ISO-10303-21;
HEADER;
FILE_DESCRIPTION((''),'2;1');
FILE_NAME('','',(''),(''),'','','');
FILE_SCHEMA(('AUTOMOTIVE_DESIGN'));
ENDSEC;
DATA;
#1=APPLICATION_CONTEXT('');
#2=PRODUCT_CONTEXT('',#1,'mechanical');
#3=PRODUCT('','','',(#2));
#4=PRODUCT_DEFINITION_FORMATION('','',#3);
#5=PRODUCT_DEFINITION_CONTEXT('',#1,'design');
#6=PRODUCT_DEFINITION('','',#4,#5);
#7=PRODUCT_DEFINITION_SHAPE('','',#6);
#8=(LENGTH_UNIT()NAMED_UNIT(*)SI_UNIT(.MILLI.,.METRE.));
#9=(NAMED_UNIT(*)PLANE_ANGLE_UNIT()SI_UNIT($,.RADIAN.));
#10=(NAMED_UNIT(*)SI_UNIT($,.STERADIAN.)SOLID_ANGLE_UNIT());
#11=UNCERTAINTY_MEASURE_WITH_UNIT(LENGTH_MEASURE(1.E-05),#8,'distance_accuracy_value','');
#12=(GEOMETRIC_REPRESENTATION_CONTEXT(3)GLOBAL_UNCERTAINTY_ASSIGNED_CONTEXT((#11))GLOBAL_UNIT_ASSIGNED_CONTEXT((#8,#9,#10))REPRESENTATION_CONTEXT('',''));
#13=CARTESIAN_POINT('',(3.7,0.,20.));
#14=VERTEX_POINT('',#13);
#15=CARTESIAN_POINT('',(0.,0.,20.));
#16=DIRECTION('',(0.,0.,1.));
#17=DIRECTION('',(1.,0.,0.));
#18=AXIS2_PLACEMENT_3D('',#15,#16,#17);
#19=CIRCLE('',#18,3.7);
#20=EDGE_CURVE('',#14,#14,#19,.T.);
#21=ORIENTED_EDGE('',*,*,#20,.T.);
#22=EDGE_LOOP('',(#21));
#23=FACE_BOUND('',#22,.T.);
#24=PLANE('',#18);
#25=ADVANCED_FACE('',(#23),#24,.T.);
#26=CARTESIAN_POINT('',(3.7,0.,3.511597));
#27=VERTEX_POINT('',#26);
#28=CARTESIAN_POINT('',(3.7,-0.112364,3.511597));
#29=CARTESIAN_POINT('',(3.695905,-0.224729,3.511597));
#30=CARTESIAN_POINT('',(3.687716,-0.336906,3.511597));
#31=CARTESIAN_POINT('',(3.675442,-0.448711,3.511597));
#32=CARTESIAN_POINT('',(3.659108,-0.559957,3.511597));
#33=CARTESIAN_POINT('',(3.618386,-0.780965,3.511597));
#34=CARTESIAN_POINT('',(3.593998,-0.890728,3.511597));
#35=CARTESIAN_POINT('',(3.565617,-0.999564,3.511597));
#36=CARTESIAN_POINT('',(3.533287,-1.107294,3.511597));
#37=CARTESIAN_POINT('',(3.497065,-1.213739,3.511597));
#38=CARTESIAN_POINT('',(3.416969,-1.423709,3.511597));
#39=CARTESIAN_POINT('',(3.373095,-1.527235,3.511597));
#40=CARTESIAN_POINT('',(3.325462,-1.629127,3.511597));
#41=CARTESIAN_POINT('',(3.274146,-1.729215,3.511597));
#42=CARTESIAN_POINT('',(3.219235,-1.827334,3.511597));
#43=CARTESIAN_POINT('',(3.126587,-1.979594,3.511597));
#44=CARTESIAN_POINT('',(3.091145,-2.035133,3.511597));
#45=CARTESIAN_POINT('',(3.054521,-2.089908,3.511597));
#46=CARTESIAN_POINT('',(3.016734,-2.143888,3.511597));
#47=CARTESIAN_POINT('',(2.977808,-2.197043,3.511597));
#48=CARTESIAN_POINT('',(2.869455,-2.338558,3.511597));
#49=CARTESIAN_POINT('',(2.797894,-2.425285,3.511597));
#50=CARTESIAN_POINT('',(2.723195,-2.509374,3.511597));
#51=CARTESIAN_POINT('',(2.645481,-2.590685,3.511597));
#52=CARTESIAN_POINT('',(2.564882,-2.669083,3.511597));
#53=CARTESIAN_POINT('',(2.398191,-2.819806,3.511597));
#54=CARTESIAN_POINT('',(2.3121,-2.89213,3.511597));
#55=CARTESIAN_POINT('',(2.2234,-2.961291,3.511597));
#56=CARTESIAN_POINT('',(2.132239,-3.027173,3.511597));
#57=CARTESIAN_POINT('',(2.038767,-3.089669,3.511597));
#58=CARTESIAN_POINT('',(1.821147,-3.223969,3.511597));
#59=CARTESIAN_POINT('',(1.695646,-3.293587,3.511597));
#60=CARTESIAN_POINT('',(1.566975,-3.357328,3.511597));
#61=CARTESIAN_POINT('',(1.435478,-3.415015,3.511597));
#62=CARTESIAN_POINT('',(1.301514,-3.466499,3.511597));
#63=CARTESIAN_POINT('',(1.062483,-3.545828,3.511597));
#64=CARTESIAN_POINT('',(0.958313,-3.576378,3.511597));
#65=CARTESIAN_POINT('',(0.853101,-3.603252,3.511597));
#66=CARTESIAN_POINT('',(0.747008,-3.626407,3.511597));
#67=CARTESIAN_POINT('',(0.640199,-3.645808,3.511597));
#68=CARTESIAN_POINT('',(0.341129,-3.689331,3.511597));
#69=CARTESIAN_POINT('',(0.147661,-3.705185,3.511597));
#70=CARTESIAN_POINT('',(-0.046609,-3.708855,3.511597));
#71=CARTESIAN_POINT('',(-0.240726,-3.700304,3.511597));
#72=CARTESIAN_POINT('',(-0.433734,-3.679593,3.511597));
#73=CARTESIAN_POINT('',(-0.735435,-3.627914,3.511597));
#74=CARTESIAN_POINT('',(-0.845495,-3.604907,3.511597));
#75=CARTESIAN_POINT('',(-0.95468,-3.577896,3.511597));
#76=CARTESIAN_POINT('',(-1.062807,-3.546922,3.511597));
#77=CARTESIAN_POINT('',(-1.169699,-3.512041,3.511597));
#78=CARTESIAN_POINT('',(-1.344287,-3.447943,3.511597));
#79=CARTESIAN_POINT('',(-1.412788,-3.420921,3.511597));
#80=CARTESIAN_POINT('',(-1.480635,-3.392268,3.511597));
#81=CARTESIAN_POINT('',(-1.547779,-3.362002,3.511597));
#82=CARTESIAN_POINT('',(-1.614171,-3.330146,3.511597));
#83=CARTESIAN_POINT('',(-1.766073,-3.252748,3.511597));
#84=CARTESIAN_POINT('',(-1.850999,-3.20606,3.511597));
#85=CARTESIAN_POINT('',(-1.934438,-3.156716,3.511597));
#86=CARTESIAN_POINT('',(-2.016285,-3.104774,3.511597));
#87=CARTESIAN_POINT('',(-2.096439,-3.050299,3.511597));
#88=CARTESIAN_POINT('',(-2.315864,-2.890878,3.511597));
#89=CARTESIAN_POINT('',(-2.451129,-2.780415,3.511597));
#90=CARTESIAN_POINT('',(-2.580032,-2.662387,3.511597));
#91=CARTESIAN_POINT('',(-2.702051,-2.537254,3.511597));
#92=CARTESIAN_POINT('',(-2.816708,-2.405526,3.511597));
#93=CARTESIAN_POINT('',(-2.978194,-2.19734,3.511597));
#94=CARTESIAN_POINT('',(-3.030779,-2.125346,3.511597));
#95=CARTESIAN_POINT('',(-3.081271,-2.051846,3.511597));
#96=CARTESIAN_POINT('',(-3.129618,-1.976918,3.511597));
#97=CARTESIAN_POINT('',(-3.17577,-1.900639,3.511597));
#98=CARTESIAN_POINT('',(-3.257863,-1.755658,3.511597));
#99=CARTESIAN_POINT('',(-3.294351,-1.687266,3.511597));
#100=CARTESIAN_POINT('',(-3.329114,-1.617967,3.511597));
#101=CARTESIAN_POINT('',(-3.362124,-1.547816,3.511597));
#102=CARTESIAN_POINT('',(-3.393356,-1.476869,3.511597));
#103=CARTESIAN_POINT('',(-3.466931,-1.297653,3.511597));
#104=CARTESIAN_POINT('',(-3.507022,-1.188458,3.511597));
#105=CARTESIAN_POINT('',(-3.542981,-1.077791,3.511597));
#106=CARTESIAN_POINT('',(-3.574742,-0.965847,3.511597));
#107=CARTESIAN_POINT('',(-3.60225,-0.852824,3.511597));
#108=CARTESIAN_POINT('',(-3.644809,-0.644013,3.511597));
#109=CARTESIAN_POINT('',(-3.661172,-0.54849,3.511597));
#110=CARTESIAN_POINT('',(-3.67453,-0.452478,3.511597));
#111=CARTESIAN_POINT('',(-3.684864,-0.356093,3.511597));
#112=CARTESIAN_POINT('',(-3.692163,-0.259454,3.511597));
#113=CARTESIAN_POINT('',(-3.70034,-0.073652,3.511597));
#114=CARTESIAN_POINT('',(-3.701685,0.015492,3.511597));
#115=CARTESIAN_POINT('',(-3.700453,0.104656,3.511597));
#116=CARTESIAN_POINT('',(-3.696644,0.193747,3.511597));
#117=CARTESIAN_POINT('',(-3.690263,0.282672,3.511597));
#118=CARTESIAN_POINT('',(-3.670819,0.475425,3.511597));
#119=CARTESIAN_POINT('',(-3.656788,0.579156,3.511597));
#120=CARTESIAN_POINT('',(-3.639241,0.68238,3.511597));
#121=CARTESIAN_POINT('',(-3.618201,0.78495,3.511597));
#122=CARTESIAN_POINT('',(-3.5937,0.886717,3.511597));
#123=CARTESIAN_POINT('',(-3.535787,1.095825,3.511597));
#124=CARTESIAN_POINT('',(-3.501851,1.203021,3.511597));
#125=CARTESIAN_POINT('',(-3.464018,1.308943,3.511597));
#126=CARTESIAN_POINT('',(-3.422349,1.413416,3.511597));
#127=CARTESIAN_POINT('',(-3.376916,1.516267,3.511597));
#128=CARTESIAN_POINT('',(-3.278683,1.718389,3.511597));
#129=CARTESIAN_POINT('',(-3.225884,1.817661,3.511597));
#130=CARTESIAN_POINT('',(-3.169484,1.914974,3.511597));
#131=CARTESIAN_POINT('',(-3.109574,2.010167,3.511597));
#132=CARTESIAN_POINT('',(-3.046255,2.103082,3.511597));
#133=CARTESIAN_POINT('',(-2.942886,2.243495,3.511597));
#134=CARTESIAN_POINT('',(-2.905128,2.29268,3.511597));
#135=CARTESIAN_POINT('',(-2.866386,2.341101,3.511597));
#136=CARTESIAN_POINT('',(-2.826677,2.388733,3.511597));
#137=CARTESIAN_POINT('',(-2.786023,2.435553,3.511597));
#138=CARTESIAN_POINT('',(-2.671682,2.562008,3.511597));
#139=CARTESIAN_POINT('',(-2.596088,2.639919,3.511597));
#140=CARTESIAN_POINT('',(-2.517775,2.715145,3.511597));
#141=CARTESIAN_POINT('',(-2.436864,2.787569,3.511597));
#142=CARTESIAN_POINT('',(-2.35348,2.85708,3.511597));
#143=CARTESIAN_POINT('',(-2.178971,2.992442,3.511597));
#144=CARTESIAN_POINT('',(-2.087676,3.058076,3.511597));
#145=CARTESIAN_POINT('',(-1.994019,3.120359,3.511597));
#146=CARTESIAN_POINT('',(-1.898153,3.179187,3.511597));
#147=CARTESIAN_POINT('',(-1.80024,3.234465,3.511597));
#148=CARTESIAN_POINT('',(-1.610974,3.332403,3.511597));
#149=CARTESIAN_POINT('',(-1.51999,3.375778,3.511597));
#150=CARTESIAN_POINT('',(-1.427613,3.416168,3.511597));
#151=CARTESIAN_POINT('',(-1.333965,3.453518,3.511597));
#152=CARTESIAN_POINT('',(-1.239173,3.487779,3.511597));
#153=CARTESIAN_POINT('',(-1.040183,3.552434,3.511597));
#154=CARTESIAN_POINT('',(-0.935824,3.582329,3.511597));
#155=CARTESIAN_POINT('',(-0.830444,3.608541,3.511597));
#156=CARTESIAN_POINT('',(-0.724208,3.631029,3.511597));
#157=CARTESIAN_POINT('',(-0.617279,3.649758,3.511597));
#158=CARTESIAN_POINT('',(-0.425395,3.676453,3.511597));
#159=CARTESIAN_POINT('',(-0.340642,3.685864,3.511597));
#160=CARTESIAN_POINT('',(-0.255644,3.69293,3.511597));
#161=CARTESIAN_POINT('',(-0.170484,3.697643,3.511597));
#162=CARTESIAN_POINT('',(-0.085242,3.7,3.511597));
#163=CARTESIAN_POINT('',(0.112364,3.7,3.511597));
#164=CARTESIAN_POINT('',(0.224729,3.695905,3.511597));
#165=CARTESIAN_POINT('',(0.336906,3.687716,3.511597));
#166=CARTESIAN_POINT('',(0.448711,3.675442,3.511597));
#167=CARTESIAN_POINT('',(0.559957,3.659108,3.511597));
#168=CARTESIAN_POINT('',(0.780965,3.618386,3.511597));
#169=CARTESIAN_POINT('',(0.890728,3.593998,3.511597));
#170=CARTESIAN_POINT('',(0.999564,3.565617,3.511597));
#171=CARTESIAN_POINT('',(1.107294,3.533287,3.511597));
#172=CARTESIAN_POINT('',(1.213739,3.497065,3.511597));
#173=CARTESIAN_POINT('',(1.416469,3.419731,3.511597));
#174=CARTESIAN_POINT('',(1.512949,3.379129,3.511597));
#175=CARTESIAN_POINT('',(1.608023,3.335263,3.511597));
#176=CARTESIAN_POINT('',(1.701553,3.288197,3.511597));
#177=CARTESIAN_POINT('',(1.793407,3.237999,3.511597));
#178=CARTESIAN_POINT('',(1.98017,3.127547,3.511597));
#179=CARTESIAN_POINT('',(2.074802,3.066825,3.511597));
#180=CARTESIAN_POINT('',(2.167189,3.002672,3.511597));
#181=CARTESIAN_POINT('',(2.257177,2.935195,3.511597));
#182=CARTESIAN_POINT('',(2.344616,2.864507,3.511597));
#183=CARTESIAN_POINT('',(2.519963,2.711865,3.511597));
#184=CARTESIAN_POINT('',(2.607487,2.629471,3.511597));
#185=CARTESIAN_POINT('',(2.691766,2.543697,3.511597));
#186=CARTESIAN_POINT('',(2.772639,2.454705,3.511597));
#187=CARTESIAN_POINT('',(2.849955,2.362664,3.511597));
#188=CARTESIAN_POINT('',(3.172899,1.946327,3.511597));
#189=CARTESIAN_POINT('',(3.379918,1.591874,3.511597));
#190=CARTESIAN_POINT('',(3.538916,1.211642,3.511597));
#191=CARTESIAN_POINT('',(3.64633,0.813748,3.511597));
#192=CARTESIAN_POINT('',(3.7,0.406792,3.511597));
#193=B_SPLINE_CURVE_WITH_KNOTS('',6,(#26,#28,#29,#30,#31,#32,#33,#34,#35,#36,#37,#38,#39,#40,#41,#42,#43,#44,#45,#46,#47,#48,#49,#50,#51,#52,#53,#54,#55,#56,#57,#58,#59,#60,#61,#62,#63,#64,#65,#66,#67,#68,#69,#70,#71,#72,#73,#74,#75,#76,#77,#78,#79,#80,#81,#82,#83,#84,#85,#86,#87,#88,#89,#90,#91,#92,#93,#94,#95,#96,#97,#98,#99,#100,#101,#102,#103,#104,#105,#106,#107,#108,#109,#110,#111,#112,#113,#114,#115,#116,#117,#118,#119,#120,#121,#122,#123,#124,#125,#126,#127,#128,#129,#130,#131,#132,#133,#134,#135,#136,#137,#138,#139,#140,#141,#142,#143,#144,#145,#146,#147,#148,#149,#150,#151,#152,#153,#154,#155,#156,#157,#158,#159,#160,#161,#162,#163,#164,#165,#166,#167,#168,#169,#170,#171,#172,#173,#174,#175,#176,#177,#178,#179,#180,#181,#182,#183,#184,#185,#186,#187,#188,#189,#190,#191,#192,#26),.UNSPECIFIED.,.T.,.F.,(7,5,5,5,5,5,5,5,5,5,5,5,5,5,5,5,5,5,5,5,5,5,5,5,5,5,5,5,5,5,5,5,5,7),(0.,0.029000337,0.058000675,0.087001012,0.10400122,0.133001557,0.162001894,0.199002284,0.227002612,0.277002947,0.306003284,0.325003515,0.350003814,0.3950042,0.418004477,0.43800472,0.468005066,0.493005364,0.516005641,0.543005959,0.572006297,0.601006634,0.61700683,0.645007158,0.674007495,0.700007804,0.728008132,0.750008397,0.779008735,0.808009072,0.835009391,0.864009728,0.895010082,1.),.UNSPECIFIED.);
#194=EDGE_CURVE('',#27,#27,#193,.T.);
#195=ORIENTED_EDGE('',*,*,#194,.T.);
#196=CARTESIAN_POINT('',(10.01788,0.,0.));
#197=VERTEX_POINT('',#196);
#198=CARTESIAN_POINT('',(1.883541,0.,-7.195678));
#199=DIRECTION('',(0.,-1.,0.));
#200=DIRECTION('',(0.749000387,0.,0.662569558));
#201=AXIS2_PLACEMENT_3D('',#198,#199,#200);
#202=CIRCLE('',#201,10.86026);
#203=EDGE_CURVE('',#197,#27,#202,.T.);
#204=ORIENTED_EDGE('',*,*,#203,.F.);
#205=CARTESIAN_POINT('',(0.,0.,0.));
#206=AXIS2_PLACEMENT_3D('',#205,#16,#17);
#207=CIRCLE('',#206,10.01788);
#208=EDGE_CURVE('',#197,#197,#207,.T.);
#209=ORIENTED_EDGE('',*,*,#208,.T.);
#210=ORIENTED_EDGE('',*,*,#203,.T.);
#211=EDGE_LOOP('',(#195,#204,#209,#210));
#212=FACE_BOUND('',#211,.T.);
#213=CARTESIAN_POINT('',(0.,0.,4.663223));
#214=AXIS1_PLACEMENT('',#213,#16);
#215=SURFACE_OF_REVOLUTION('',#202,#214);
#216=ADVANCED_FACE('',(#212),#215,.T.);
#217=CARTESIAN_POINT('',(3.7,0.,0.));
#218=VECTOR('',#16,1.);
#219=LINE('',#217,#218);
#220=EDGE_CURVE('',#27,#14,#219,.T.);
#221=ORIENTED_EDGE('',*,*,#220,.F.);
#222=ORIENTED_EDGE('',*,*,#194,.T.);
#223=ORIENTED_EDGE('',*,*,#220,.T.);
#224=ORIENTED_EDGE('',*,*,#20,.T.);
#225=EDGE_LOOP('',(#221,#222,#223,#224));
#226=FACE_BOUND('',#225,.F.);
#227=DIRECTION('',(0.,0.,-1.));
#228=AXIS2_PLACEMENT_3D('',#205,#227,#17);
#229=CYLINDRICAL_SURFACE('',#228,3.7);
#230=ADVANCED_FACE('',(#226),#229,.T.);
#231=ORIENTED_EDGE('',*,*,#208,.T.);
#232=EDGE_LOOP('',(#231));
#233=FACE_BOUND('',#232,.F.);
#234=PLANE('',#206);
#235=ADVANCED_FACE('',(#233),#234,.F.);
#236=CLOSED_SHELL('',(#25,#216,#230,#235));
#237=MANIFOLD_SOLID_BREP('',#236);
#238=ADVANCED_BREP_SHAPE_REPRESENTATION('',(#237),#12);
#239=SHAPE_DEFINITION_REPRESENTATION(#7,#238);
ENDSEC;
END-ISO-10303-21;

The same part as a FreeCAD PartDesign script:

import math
import FreeCAD as App
import Part
import Sketcher
Q = App.Units.Quantity

doc = App.newDocument("Part")
params = doc.addObject("Spreadsheet::Sheet", "Params")
for row, (alias, value) in enumerate([
    ("sketch1_height", "3.5 mm"),
    ("revolution_angle", "360 deg"),
    ("sketch2_diameter", "7.4 mm"),
    ("pad1_length", "20 mm"),
], start=1):
    params.set(f"A{row}", alias)
    params.set(f"B{row}", "=" + value)
    params.setAlias(f"B{row}", alias)

body = doc.addObject("PartDesign::Body", "Body")

# Sketch on XZ plane
sketch1 = doc.addObject("Sketcher::SketchObject", "Sketch")
body.addObject(sketch1)
sketch1.AttachmentSupport = (doc.XZ_Plane, [""])
sketch1.MapMode = "FlatFace"
sketch1.addGeometry(Part.LineSegment(App.Vector(0, 3.5, 0), App.Vector(0, 0, 0)), False)
sketch1.addGeometry(Part.LineSegment(App.Vector(0, 0, 0), App.Vector(10.01788, 0, 0)), False)
sketch1.addGeometry(Part.ArcOfCircle(Part.Circle(App.Vector(1.883541, -7.195678, 0), App.Vector(0, 0, 1), 10.86026), math.radians(41.496138), math.radians(99.987554)), False)
sketch1.addConstraint(Sketcher.Constraint("Coincident", 0, 2, 1, 1))
sketch1.addConstraint(Sketcher.Constraint("Coincident", 1, 2, 2, 1))
sketch1.addConstraint(Sketcher.Constraint("Coincident", 2, 2, 0, 1))
sketch1.addConstraint(Sketcher.Constraint("Vertical", 0))
sketch1.addConstraint(Sketcher.Constraint("Horizontal", 1))
sketch1.addConstraint(Sketcher.Constraint("Coincident", 0, 2, -1, 1))
sketch1.addConstraint(Sketcher.Constraint("DistanceY", 0, 2, 0, 1, Q("3.5 mm")))
sketch1.addConstraint(Sketcher.Constraint("Radius", 2, Q("10.86026 mm")))
sketch1.addConstraint(Sketcher.Constraint("DistanceX", 1, 1, 1, 2, Q("10.01788 mm")))
sketch1.setExpression("Constraints[6]", "Params.sketch1_height")
revolution = doc.addObject("PartDesign::Revolution", "Revolution")
body.addObject(revolution)
revolution.Profile = sketch1
revolution.ReferenceAxis = (sketch1, ["V_Axis"])
revolution.setExpression("Angle", "Params.revolution_angle")

# Sketch on XY plane
sketch2 = doc.addObject("Sketcher::SketchObject", "Sketch001")
body.addObject(sketch2)
sketch2.AttachmentSupport = (doc.XY_Plane, [""])
sketch2.MapMode = "FlatFace"
sketch2.addGeometry(Part.Circle(App.Vector(0, 0, 0), App.Vector(0, 0, 1), 3.7), False)
sketch2.addConstraint(Sketcher.Constraint("Coincident", 0, 3, -1, 1))
sketch2.addConstraint(Sketcher.Constraint("Diameter", 0, Q("7.4 mm")))
sketch2.setExpression("Constraints[1]", "Params.sketch2_diameter")
pad1 = doc.addObject("PartDesign::Pad", "Pad")
body.addObject(pad1)
pad1.Profile = sketch2
pad1.setExpression("Length", "Params.pad1_length")

doc.recompute()
